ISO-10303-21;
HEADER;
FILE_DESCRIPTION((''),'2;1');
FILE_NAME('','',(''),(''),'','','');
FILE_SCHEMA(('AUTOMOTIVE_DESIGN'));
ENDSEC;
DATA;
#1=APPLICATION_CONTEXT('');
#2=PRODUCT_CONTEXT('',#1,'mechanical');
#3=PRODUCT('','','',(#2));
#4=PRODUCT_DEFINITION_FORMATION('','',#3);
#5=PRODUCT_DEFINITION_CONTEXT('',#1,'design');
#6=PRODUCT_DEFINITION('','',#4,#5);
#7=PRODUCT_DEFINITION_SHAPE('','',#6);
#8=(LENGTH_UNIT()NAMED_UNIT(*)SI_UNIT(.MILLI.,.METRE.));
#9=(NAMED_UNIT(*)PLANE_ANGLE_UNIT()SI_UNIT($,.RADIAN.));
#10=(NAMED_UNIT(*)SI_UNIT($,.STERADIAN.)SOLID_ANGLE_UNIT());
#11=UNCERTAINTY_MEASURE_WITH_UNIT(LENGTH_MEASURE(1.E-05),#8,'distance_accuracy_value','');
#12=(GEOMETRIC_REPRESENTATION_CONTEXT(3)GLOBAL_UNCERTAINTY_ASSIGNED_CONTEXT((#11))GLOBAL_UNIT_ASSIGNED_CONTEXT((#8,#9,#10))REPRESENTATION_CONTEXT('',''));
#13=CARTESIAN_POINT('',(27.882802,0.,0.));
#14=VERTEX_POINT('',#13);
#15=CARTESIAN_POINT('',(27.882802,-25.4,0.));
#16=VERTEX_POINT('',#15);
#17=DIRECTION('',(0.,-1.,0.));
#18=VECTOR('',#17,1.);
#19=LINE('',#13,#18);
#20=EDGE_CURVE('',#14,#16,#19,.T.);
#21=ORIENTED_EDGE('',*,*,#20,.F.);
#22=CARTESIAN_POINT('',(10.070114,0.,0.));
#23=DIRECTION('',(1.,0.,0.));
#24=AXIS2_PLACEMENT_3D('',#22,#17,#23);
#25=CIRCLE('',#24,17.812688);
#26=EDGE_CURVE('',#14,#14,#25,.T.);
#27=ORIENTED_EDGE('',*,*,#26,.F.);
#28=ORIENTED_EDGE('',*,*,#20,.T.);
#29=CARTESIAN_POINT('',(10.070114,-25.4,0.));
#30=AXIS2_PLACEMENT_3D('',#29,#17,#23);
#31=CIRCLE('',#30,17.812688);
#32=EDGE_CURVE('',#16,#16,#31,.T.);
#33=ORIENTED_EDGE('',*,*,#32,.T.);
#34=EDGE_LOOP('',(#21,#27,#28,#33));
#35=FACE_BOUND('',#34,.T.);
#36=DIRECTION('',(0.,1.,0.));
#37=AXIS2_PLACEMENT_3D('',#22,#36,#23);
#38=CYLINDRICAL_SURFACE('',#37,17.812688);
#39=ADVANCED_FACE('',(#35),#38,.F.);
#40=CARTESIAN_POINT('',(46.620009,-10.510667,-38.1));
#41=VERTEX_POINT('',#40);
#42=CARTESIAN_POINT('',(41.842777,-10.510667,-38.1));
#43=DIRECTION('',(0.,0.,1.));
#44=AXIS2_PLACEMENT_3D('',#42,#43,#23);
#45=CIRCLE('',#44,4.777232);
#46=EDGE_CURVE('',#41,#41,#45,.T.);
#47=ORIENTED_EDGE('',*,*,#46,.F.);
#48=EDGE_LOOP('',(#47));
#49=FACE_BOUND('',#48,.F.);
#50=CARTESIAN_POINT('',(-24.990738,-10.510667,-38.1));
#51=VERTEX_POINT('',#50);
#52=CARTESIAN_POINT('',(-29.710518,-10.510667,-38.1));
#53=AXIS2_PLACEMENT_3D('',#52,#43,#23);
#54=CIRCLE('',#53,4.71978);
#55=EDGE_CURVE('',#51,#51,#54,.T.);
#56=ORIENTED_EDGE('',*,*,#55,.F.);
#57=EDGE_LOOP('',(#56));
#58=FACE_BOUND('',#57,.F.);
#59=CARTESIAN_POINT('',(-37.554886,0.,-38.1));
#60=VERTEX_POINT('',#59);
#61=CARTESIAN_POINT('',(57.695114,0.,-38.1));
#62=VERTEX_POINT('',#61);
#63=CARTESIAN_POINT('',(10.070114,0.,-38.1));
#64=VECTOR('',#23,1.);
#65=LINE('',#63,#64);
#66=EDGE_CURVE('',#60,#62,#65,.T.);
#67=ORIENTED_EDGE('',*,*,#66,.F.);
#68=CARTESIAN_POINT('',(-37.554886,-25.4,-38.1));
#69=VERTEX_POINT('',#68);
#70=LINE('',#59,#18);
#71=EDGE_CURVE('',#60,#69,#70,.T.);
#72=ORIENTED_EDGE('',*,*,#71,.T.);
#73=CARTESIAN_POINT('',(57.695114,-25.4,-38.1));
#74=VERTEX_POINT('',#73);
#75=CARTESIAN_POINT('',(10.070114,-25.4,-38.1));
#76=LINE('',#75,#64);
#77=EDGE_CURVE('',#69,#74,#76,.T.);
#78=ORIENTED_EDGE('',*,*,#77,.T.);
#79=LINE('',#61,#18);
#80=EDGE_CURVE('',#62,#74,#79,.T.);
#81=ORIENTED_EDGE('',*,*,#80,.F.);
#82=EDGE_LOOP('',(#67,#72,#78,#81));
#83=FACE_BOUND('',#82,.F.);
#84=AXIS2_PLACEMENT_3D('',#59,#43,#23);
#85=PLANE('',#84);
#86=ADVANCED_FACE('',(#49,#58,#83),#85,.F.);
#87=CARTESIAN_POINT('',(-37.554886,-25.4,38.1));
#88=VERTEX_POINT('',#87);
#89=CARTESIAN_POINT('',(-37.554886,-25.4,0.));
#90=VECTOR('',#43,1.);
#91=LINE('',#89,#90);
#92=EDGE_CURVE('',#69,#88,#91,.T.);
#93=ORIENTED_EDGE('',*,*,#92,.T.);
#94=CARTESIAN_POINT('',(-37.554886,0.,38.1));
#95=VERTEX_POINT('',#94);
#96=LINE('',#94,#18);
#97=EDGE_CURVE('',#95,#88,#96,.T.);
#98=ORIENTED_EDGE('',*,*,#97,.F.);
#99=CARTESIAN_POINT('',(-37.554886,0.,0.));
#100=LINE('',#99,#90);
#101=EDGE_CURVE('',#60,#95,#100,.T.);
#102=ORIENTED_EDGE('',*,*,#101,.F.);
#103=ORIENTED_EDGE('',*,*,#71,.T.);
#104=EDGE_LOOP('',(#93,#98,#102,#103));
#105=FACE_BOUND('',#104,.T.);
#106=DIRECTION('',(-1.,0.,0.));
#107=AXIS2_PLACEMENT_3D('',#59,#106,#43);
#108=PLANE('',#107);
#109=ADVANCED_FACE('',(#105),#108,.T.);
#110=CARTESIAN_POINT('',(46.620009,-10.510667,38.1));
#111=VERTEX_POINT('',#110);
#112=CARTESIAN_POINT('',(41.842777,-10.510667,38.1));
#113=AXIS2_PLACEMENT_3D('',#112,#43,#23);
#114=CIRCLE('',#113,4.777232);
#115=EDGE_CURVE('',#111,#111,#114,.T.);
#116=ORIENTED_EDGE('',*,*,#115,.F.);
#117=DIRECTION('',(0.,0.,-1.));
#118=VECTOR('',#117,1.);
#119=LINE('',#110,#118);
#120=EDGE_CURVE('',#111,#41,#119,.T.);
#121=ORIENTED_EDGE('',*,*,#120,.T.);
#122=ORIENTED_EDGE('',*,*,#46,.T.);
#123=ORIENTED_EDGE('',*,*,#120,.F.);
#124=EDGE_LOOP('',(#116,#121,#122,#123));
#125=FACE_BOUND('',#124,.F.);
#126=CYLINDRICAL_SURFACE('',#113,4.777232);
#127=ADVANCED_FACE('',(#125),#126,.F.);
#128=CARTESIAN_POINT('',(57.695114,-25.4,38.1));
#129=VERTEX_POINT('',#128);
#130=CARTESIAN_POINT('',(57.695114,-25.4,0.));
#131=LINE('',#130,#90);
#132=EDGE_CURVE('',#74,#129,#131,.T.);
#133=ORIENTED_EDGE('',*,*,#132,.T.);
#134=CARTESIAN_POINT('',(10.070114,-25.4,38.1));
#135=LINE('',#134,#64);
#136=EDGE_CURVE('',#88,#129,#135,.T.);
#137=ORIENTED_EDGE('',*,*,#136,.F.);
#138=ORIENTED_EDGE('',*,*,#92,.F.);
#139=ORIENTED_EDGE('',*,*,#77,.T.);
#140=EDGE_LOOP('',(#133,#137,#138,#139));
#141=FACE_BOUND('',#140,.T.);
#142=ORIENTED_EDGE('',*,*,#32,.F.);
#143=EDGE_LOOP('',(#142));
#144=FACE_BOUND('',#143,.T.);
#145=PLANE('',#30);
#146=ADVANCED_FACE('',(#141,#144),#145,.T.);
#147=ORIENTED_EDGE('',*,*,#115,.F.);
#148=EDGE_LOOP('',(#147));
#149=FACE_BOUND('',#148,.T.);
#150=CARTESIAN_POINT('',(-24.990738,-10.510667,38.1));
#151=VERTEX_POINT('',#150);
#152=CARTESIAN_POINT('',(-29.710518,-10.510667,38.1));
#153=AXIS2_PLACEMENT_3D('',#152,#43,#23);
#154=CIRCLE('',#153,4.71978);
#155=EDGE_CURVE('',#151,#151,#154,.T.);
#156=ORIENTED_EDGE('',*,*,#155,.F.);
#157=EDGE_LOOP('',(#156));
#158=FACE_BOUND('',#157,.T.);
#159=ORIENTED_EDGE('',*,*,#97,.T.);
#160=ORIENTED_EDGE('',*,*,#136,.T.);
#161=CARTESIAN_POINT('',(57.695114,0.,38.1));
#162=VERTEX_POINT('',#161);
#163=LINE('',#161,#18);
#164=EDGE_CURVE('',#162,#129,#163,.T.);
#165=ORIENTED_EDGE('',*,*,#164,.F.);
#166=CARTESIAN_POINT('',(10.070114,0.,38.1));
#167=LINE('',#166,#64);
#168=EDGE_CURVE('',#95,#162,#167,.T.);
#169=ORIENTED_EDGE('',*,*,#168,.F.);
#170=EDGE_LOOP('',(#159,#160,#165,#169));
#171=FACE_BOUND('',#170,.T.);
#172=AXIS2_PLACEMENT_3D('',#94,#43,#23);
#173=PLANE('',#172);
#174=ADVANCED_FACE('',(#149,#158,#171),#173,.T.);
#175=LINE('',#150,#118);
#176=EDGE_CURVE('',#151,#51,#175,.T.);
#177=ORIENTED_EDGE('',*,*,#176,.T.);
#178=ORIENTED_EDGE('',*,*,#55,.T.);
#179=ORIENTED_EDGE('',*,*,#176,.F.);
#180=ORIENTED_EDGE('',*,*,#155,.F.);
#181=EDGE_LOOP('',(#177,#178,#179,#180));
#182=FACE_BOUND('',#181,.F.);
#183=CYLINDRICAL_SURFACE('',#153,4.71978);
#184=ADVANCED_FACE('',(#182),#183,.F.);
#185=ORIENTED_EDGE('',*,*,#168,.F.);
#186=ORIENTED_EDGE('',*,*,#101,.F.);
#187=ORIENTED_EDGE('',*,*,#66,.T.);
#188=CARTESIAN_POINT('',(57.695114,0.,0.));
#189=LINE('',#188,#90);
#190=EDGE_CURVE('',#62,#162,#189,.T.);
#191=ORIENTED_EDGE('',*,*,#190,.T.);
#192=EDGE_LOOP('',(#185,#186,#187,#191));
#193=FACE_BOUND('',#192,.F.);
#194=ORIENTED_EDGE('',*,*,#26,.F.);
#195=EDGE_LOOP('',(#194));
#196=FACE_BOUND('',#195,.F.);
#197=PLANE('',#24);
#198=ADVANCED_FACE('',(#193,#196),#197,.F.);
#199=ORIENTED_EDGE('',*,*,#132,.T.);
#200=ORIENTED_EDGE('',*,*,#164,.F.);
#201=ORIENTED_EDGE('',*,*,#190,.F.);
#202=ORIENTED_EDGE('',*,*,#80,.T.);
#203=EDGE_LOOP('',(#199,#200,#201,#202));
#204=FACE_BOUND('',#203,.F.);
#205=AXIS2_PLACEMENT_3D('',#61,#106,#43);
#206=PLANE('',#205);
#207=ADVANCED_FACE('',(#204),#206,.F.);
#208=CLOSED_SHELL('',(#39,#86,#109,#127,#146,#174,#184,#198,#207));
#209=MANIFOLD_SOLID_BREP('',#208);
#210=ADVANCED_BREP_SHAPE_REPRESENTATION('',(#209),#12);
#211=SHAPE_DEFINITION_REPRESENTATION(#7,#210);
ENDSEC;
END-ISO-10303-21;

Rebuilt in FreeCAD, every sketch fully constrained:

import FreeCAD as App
import Part
import Sketcher

V = App.Vector
Q = App.Units.Quantity


def add_polygon(sketch, points):
    """Adds a closed chain of lines whose ends are joined by coincident constraints."""
    first, n = sketch.GeometryCount, len(points)
    for a, b in zip(points, points[1:] + points[:1]):
        sketch.addGeometry(Part.LineSegment(App.Vector(*a, 0), App.Vector(*b, 0)), False)
    for i in range(n):
        sketch.addConstraint(Sketcher.Constraint("Coincident", first + i, 2, first + (i + 1) % n, 1))

doc = App.newDocument("Part")
body = doc.addObject("PartDesign::Body", "Body")

# Sketch on XZ plane
sketch1 = body.newObject("Sketcher::SketchObject", "Sketch")
sketch1.AttachmentSupport = (doc.getObject("XZ_Plane"), [""])
sketch1.MapMode = "FlatFace"
add_polygon(sketch1, [(-38, 38), (-38, -38), (58, -38), (58, 38)])  # lines 0-3
sketch1.addGeometry(Part.Circle(V(10, 0, 0), V(0, 0, 1), 18), False)  # 4
sketch1.addConstraint([
    Sketcher.Constraint("Vertical", 0),
    Sketcher.Constraint("Horizontal", 1),
    Sketcher.Constraint("Vertical", 2),
    Sketcher.Constraint("Horizontal", 3),
    Sketcher.Constraint("PointOnObject", 4, 3, -1),
    Sketcher.Constraint("DistanceY", 0, 2, 0, 1, Q("3 in")),
    Sketcher.Constraint("DistanceX", 1, 1, 1, 2, Q("3.75 in")),
    Sketcher.Constraint("DistanceY", 0, 2, -1, 1, Q("1.5 in")),
    Sketcher.Constraint("DistanceX", 0, 2, 4, 3, Q("1.875 in")),
    Sketcher.Constraint("Diameter", 4, 35.625376),
    Sketcher.Constraint("DistanceX", -1, 1, 4, 3, 10.070114),
])
pad1 = body.newObject("PartDesign::Pad", "Pad")
pad1.Profile = sketch1
pad1.Length = Q("1 in")

# Sketch on XY plane
sketch2 = body.newObject("Sketcher::SketchObject", "Sketch001")
sketch2.AttachmentSupport = (doc.getObject("XY_Plane"), [""])
sketch2.MapMode = "FlatFace"
sketch2.AttachmentOffset = App.Placement(V(0, 0, 1.5 * 25.4), App.Rotation())
sketch2.addGeometry([
    Part.Circle(V(-29.7, -10.5, 0), V(0, 0, 1), 4.7),
    Part.Circle(V(41.8, -10.5, 0), V(0, 0, 1), 4.8),
], False)
sketch2.addConstraint([
    Sketcher.Constraint("Horizontal", 0, 3, 1, 3),
    Sketcher.Constraint("Diameter", 0, 9.43956),
    Sketcher.Constraint("Diameter", 1, 9.554464),
    Sketcher.Constraint("DistanceX", 0, 3, -1, 1, 29.710518),
    Sketcher.Constraint("DistanceY", 0, 3, -1, 1, 10.510667),
    Sketcher.Constraint("DistanceX", -1, 1, 1, 3, 41.842777),
])
pocket1 = body.newObject("PartDesign::Pocket", "Pocket")
pocket1.Profile = sketch2
pocket1.Length = Q("10 in")

# Sketch on XY plane
sketch3 = body.newObject("Sketcher::SketchObject", "Sketch002")
sketch3.AttachmentSupport = (doc.getObject("XY_Plane"), [""])
sketch3.MapMode = "FlatFace"
sketch3.AttachmentOffset = App.Placement(V(0, 0, 1.5 * 25.4), App.Rotation())
sketch3.addGeometry([
    Part.Circle(V(-29.7, -10.5, 0), V(0, 0, 1), 4.7),
    Part.Circle(V(41.8, -10.5, 0), V(0, 0, 1), 4.8),
], False)
sketch3.addConstraint([
    Sketcher.Constraint("Horizontal", 0, 3, 1, 3),
    Sketcher.Constraint("Diameter", 0, 9.43956),
    Sketcher.Constraint("Diameter", 1, 9.554464),
    Sketcher.Constraint("DistanceX", 0, 3, -1, 1, 29.710518),
    Sketcher.Constraint("DistanceY", 0, 3, -1, 1, 10.510667),
    Sketcher.Constraint("DistanceX", -1, 1, 1, 3, 41.842777),
])
pocket2 = body.newObject("PartDesign::Pocket", "Pocket001")
pocket2.Profile = sketch3
pocket2.Length = Q("10 in")

doc.recompute()
